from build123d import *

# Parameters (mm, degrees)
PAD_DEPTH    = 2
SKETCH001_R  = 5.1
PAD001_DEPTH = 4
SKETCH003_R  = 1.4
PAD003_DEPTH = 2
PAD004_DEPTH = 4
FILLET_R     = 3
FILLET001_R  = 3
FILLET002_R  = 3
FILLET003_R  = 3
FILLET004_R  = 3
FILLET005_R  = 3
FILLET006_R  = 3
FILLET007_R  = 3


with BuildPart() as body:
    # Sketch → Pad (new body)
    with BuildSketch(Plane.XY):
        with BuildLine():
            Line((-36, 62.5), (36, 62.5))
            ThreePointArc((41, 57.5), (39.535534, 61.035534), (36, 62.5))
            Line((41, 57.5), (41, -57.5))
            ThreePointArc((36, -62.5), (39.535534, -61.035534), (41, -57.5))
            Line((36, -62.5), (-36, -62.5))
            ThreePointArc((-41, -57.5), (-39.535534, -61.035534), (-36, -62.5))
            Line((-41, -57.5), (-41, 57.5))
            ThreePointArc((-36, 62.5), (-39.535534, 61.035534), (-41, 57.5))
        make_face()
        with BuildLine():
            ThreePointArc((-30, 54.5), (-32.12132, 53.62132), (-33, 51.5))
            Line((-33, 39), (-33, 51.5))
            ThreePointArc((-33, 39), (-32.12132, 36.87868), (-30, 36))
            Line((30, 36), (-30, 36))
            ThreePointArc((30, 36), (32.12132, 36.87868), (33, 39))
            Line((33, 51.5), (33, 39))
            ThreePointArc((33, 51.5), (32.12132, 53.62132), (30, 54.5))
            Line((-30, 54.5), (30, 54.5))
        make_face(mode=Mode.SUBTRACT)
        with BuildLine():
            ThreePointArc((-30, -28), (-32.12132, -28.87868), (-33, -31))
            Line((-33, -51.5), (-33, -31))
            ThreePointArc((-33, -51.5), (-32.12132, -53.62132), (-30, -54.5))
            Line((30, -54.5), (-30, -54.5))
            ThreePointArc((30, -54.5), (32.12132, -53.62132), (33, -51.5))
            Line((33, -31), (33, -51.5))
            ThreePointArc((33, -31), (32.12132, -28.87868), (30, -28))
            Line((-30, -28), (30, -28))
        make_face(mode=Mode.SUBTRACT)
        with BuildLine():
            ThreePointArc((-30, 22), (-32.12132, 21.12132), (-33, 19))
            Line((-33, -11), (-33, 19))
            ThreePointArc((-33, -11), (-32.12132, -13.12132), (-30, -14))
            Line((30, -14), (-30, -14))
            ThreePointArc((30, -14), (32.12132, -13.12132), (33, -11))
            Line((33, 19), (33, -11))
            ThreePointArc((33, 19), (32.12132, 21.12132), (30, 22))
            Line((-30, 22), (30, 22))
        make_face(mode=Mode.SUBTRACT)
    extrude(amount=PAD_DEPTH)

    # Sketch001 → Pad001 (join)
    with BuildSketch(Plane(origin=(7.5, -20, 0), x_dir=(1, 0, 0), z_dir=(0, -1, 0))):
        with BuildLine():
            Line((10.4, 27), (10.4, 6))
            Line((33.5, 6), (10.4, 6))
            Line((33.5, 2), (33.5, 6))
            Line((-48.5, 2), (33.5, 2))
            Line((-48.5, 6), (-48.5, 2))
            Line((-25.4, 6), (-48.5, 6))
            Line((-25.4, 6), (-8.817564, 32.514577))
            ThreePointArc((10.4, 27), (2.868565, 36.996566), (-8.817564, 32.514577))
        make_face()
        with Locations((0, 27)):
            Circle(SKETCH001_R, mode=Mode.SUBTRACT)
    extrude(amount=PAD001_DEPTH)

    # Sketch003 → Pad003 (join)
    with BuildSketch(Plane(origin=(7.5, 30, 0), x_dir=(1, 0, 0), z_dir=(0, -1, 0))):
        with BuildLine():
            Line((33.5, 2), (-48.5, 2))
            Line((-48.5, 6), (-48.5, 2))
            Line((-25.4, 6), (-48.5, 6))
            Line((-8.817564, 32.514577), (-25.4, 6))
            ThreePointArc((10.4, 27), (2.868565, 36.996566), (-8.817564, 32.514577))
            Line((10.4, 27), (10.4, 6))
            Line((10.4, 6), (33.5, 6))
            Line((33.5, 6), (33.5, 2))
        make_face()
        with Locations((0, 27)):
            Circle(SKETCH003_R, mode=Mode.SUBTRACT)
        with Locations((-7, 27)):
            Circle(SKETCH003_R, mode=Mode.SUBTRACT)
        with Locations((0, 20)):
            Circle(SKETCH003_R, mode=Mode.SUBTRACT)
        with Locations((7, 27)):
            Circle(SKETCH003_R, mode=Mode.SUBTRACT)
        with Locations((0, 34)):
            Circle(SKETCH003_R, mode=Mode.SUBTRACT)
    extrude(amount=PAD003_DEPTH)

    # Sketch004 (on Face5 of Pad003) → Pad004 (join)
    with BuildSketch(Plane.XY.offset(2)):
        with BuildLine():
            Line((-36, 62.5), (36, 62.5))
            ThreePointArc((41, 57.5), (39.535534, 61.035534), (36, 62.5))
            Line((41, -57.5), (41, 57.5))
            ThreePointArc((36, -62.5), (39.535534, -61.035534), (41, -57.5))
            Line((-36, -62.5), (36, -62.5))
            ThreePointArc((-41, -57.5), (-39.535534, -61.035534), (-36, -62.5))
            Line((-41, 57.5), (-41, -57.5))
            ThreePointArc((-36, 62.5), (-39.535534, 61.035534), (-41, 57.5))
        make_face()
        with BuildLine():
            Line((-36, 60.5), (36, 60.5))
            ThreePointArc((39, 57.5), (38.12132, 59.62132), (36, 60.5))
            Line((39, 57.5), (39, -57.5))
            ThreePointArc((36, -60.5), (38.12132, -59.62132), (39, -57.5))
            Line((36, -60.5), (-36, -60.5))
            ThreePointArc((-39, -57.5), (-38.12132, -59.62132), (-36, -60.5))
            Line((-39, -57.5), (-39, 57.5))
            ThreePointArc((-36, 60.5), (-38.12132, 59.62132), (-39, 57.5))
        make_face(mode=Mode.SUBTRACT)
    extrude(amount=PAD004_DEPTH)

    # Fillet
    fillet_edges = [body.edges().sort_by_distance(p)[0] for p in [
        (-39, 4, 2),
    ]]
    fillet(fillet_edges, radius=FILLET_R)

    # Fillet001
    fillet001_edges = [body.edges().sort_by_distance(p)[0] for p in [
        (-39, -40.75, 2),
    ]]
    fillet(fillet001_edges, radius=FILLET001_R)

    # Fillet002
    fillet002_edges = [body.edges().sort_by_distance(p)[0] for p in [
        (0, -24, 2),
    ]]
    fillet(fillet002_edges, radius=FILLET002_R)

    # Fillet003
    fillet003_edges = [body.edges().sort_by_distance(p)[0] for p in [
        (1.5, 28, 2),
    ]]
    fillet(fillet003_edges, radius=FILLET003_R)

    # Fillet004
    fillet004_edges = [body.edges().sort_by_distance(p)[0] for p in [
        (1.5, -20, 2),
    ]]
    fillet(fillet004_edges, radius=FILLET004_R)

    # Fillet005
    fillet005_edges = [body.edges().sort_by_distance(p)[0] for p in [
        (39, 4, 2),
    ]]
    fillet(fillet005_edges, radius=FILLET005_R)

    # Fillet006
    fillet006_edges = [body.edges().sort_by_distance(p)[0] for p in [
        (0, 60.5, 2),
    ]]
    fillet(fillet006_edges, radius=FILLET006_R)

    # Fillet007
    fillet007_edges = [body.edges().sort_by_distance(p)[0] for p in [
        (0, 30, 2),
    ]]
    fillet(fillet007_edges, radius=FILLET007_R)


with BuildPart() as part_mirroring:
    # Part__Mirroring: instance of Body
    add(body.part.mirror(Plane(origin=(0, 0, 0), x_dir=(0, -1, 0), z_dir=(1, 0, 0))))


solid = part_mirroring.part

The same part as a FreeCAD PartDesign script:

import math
import FreeCAD as App
import Part
import Sketcher
from FreeCAD import Vector
Q = App.Units.Quantity


def edges_at(feature, points):
    """Names of the edges that pass closest to the given points."""
    edges = feature.Shape.Edges
    near = lambda p: min(range(len(edges)), key=lambda i: edges[i].distToShape(Part.Vertex(*p))[0])
    return sorted({f"Edge{near(p) + 1}" for p in points})

doc = App.newDocument("Part")
body = doc.addObject("PartDesign::Body", "Body")

# Sketch on XY plane
sketch1 = body.newObject("Sketcher::SketchObject", "Sketch")
sketch1.AttachmentSupport = (doc.getObject("XY_Plane"), [""])
sketch1.MapMode = "FlatFace"
sketch1.addGeometry([
    Part.LineSegment(Vector(36, 62.5, 0), Vector(-36, 62.5, 0)),  # 0
    Part.ArcOfCircle(Part.Circle(Vector(-36, 57.5, 0), Vector(0, 0, 1), 5), math.radians(90), math.radians(180)),  # 1
    Part.LineSegment(Vector(-41, 57.5, 0), Vector(-41, -57.5, 0)),  # 2
    Part.ArcOfCircle(Part.Circle(Vector(-36, -57.5, 0), Vector(0, 0, 1), 5), math.radians(180), math.radians(270)),  # 3
    Part.LineSegment(Vector(-36, -62.5, 0), Vector(36, -62.5, 0)),  # 4
    Part.ArcOfCircle(Part.Circle(Vector(36, -57.5, 0), Vector(0, 0, 1), 5), math.radians(-90), math.radians(0)),  # 5
    Part.LineSegment(Vector(41, -57.5, 0), Vector(41, 57.5, 0)),  # 6
    Part.ArcOfCircle(Part.Circle(Vector(36, 57.5, 0), Vector(0, 0, 1), 5), math.radians(0), math.radians(90)),  # 7
    Part.LineSegment(Vector(-30, -28, 0), Vector(30, -28, 0)),  # 8
    Part.ArcOfCircle(Part.Circle(Vector(30, -31, 0), Vector(0, 0, 1), 3), math.radians(0), math.radians(90)),  # 9
    Part.LineSegment(Vector(33, -31, 0), Vector(33, -51.5, 0)),  # 10
    Part.ArcOfCircle(Part.Circle(Vector(30, -51.5, 0), Vector(0, 0, 1), 3), math.radians(-90), math.radians(0)),  # 11
    Part.LineSegment(Vector(30, -54.5, 0), Vector(-30, -54.5, 0)),  # 12
    Part.ArcOfCircle(Part.Circle(Vector(-30, -51.5, 0), Vector(0, 0, 1), 3), math.radians(-180), math.radians(-90)),  # 13
    Part.LineSegment(Vector(-33, -51.5, 0), Vector(-33, -31, 0)),  # 14
    Part.ArcOfCircle(Part.Circle(Vector(-30, -31, 0), Vector(0, 0, 1), 3), math.radians(90), math.radians(180)),  # 15
    Part.LineSegment(Vector(-30, 22, 0), Vector(30, 22, 0)),  # 16
    Part.ArcOfCircle(Part.Circle(Vector(30, 19, 0), Vector(0, 0, 1), 3), math.radians(0), math.radians(90)),  # 17
    Part.LineSegment(Vector(33, 19, 0), Vector(33, -11, 0)),  # 18
    Part.ArcOfCircle(Part.Circle(Vector(30, -11, 0), Vector(0, 0, 1), 3), math.radians(-90), math.radians(0)),  # 19
    Part.LineSegment(Vector(30, -14, 0), Vector(-30, -14, 0)),  # 20
    Part.ArcOfCircle(Part.Circle(Vector(-30, -11, 0), Vector(0, 0, 1), 3), math.radians(-180), math.radians(-90)),  # 21
    Part.LineSegment(Vector(-33, -11, 0), Vector(-33, 19, 0)),  # 22
    Part.ArcOfCircle(Part.Circle(Vector(-30, 19, 0), Vector(0, 0, 1), 3), math.radians(90), math.radians(180)),  # 23
    Part.LineSegment(Vector(-30, 54.5, 0), Vector(30, 54.5, 0)),  # 24
    Part.ArcOfCircle(Part.Circle(Vector(30, 51.5, 0), Vector(0, 0, 1), 3), math.radians(0), math.radians(90)),  # 25
    Part.LineSegment(Vector(33, 51.5, 0), Vector(33, 39, 0)),  # 26
    Part.ArcOfCircle(Part.Circle(Vector(30, 39, 0), Vector(0, 0, 1), 3), math.radians(-90), math.radians(0)),  # 27
    Part.LineSegment(Vector(30, 36, 0), Vector(-30, 36, 0)),  # 28
    Part.ArcOfCircle(Part.Circle(Vector(-30, 39, 0), Vector(0, 0, 1), 3), math.radians(-180), math.radians(-90)),  # 29
    Part.LineSegment(Vector(-33, 39, 0), Vector(-33, 51.5, 0)),  # 30
    Part.ArcOfCircle(Part.Circle(Vector(-30, 51.5, 0), Vector(0, 0, 1), 3), math.radians(90), math.radians(180)),  # 31
], False)
sketch1.addConstraint([
    Sketcher.Constraint("Tangent", 0, 2, 1, 1),
    Sketcher.Constraint("Tangent", 1, 2, 2, 1),
    Sketcher.Constraint("Tangent", 2, 2, 3, 1),
    Sketcher.Constraint("Tangent", 3, 2, 4, 1),
    Sketcher.Constraint("Tangent", 4, 2, 5, 1),
    Sketcher.Constraint("Tangent", 5, 2, 6, 1),
    Sketcher.Constraint("Tangent", 6, 2, 7, 1),
    Sketcher.Constraint("Tangent", 7, 2, 0, 1),
    Sketcher.Constraint("Tangent", 8, 2, 9, 2),
    Sketcher.Constraint("Tangent", 9, 1, 10, 1),
    Sketcher.Constraint("Tangent", 10, 2, 11, 2),
    Sketcher.Constraint("Tangent", 11, 1, 12, 1),
    Sketcher.Constraint("Tangent", 12, 2, 13, 2),
    Sketcher.Constraint("Tangent", 13, 1, 14, 1),
    Sketcher.Constraint("Tangent", 14, 2, 15, 2),
    Sketcher.Constraint("Tangent", 15, 1, 8, 1),
    Sketcher.Constraint("Tangent", 16, 2, 17, 2),
    Sketcher.Constraint("Tangent", 17, 1, 18, 1),
    Sketcher.Constraint("Tangent", 18, 2, 19, 2),
    Sketcher.Constraint("Tangent", 19, 1, 20, 1),
    Sketcher.Constraint("Tangent", 20, 2, 21, 2),
    Sketcher.Constraint("Tangent", 21, 1, 22, 1),
    Sketcher.Constraint("Tangent", 22, 2, 23, 2),
    Sketcher.Constraint("Tangent", 23, 1, 16, 1),
    Sketcher.Constraint("Tangent", 24, 2, 25, 2),
    Sketcher.Constraint("Tangent", 25, 1, 26, 1),
    Sketcher.Constraint("Tangent", 26, 2, 27, 2),
    Sketcher.Constraint("Tangent", 27, 1, 28, 1),
    Sketcher.Constraint("Tangent", 28, 2, 29, 2),
    Sketcher.Constraint("Tangent", 29, 1, 30, 1),
    Sketcher.Constraint("Tangent", 30, 2, 31, 2),
    Sketcher.Constraint("Tangent", 31, 1, 24, 1),
    Sketcher.Constraint("Horizontal", 0),
    Sketcher.Constraint("Vertical", 2),
    Sketcher.Constraint("Horizontal", 4),
    Sketcher.Constraint("Vertical", 6),
    Sketcher.Constraint("Horizontal", 8),
    Sketcher.Constraint("Vertical", 10),
    Sketcher.Constraint("Horizontal", 12),
    Sketcher.Constraint("Vertical", 14),
    Sketcher.Constraint("Horizontal", 16),
    Sketcher.Constraint("Vertical", 18),
    Sketcher.Constraint("Horizontal", 20),
    Sketcher.Constraint("Vertical", 22),
    Sketcher.Constraint("Horizontal", 24),
    Sketcher.Constraint("Vertical", 26),
    Sketcher.Constraint("Horizontal", 28),
    Sketcher.Constraint("Vertical", 30),
    Sketcher.Constraint("Equal", 1, 3),
    Sketcher.Constraint("Equal", 3, 5),
    Sketcher.Constraint("Equal", 5, 7),
    Sketcher.Constraint("Equal", 9, 11),
    Sketcher.Constraint("Equal", 11, 13),
    Sketcher.Constraint("Equal", 13, 15),
    Sketcher.Constraint("Equal", 15, 17),
    Sketcher.Constraint("Equal", 17, 19),
    Sketcher.Constraint("Equal", 19, 21),
    Sketcher.Constraint("Equal", 21, 23),
    Sketcher.Constraint("Equal", 23, 25),
    Sketcher.Constraint("Equal", 25, 27),
    Sketcher.Constraint("Equal", 27, 29),
    Sketcher.Constraint("Equal", 29, 31),
    Sketcher.Constraint("Symmetric", 1, 3, 5, 3, -1, 1),
    Sketcher.Constraint("Symmetric", 13, 3, 25, 3, -1, 1),
    Sketcher.Constraint("Vertical", 11, 3, 17, 3),
    Sketcher.Constraint("Vertical", 15, 3, 21, 3),
    Sketcher.Constraint("Vertical", 19, 3, 25, 3),
    Sketcher.Constraint("Vertical", 23, 3, 29, 3),
    Sketcher.Constraint("Radius", 1, Q("5 mm")),
    Sketcher.Constraint("Radius", 9, Q("3.000001 mm")),
    Sketcher.Constraint("DistanceX", 0, 2, 0, 1, Q("72 mm")),
    Sketcher.Constraint("DistanceX", 8, 1, 8, 2, Q("60 mm")),
    Sketcher.Constraint("DistanceY", 2, 2, 2, 1, Q("115 mm")),
    Sketcher.Constraint("DistanceY", 18, 2, 18, 1, Q("30 mm")),
    Sketcher.Constraint("DistanceY", 10, 2, 10, 1, Q("20.5 mm")),
    Sketcher.Constraint("DistanceY", 26, 2, 26, 1, Q("12.5 mm")),
    Sketcher.Constraint("DistanceY", 9, 3, -1, 1, Q("31.000001 mm")),
    Sketcher.Constraint("DistanceY", -1, 1, 17, 3, Q("18.999999 mm")),
])
pad1 = body.newObject("PartDesign::Pad", "Pad")
pad1.Profile = sketch1
pad1.Length = 2

# Sketch on XZ plane
sketch2 = body.newObject("Sketcher::SketchObject", "Sketch001")
sketch2.AttachmentSupport = (doc.getObject("XZ_Plane"), [""])
sketch2.MapMode = "FlatFace"
sketch2.AttachmentOffset = App.Placement(Vector(0, 0, 20), App.Rotation())
sketch2.addGeometry([
    Part.LineSegment(Vector(17.9, 6, 0), Vector(17.9, 27, 0)),  # 0
    Part.ArcOfCircle(Part.Circle(Vector(7.5, 27, 0), Vector(0, 0, 1), 10.4), math.radians(0), math.radians(148)),  # 1
    Part.LineSegment(Vector(-1.3, 32.5, 0), Vector(-17.9, 6, 0)),  # 2
    Part.LineSegment(Vector(-17.9, 6, 0), Vector(-41, 6, 0)),  # 3
    Part.LineSegment(Vector(-41, 6, 0), Vector(-41, 2, 0)),  # 4
    Part.LineSegment(Vector(-41, 2, 0), Vector(41, 2, 0)),  # 5
    Part.LineSegment(Vector(41, 2, 0), Vector(41, 6, 0)),  # 6
    Part.LineSegment(Vector(41, 6, 0), Vector(17.9, 6, 0)),  # 7
    Part.Circle(Vector(7.5, 27, 0), Vector(0, 0, 1), 5.1),  # 8
], False)
sketch2.addConstraint([
    Sketcher.Constraint("Tangent", 0, 2, 1, 1),
    Sketcher.Constraint("Tangent", 1, 2, 2, 1),
    Sketcher.Constraint("Coincident", 2, 2, 3, 1),
    Sketcher.Constraint("Coincident", 3, 2, 4, 1),
    Sketcher.Constraint("Coincident", 4, 2, 5, 1),
    Sketcher.Constraint("Coincident", 5, 2, 6, 1),
    Sketcher.Constraint("Coincident", 6, 2, 7, 1),
    Sketcher.Constraint("Coincident", 7, 2, 0, 1),
    Sketcher.Constraint("Vertical", 0),
    Sketcher.Constraint("Horizontal", 3),
    Sketcher.Constraint("Vertical", 4),
    Sketcher.Constraint("Horizontal", 5),
    Sketcher.Constraint("Vertical", 6),
    Sketcher.Constraint("Horizontal", 7),
    Sketcher.Constraint("Coincident", 8, 3, 1, 3),
    Sketcher.Constraint("Symmetric", 3, 2, 6, 2, -2),
    Sketcher.Constraint("Equal", 3, 7),
    Sketcher.Constraint("Diameter", 8, Q("10.2 mm")),
    Sketcher.Constraint("Radius", 1, Q("10.4 mm")),
    Sketcher.Constraint("DistanceX", 5, 1, 5, 2, Q("82 mm")),
    Sketcher.Constraint("DistanceY", 0, 1, 0, 2, Q("21 mm")),
    Sketcher.Constraint("DistanceY", 4, 2, 4, 1, Q("4 mm")),
    Sketcher.Constraint("DistanceX", 3, 2, 3, 1, Q("23.1 mm")),
    Sketcher.Constraint("DistanceY", -1, 1, 1, 3, Q("27 mm")),
])
pad2 = body.newObject("PartDesign::Pad", "Pad001")
pad2.Profile = sketch2
pad2.Length = 4

# Sketch on XZ plane
sketch3 = body.newObject("Sketcher::SketchObject", "Sketch002")
sketch3.AttachmentSupport = (doc.getObject("XZ_Plane"), [""])
sketch3.MapMode = "FlatFace"
sketch3.AttachmentOffset = App.Placement(Vector(0, 0, -30), App.Rotation())
sketch3.addGeometry([
    Part.LineSegment(Vector(-41, 2, 0), Vector(41, 2, 0)),  # 0
    Part.LineSegment(Vector(41, 2, 0), Vector(41, 6, 0)),  # 1
    Part.LineSegment(Vector(41, 6, 0), Vector(17.9, 6, 0)),  # 2
    Part.LineSegment(Vector(17.9, 6, 0), Vector(17.9, 27, 0)),  # 3
    Part.ArcOfCircle(Part.Circle(Vector(7.5, 27, 0), Vector(0, 0, 1), 10.4), math.radians(0), math.radians(148)),  # 4
    Part.LineSegment(Vector(-1.3, 32.5, 0), Vector(-17.9, 6, 0)),  # 5
    Part.LineSegment(Vector(-17.9, 6, 0), Vector(-41, 6, 0)),  # 6
    Part.LineSegment(Vector(-41, 6, 0), Vector(-41, 2, 0)),  # 7
    Part.Circle(Vector(7.5, 20, 0), Vector(0, 0, 1), 1.4),  # 8
    Part.Circle(Vector(14.5, 27, 0), Vector(0, 0, 1), 1.4),  # 9
    Part.Circle(Vector(7.5, 27, 0), Vector(0, 0, 1), 1.4),  # 10
    Part.Circle(Vector(0.5, 27, 0), Vector(0, 0, 1), 1.4),  # 11
    Part.Circle(Vector(7.5, 34, 0), Vector(0, 0, 1), 1.4),  # 12
], False)
sketch3.addConstraint([
    Sketcher.Constraint("Coincident", 0, 2, 1, 1),
    Sketcher.Constraint("Coincident", 1, 2, 2, 1),
    Sketcher.Constraint("Coincident", 2, 2, 3, 1),
    Sketcher.Constraint("Tangent", 3, 2, 4, 1),
    Sketcher.Constraint("Tangent", 4, 2, 5, 1),
    Sketcher.Constraint("Coincident", 5, 2, 6, 1),
    Sketcher.Constraint("Coincident", 6, 2, 7, 1),
    Sketcher.Constraint("Coincident", 7, 2, 0, 1),
    Sketcher.Constraint("Horizontal", 0),
    Sketcher.Constraint("Vertical", 1),
    Sketcher.Constraint("Horizontal", 2),
    Sketcher.Constraint("Vertical", 3),
    Sketcher.Constraint("Horizontal", 6),
    Sketcher.Constraint("Vertical", 7),
    Sketcher.Constraint("Coincident", 10, 3, 4, 3),
    Sketcher.Constraint("Equal", 8, 9),
    Sketcher.Constraint("Equal", 9, 10),
    Sketcher.Constraint("Equal", 10, 11),
    Sketcher.Constraint("Equal", 11, 12),
    Sketcher.Constraint("Symmetric", 2, 2, 5, 2, -2),
    Sketcher.Constraint("Horizontal", 4, 3, 9, 3),
    Sketcher.Constraint("Horizontal", 10, 3, 11, 3),
    Sketcher.Constraint("Vertical", 4, 3, 8, 3),
    Sketcher.Constraint("Vertical", 10, 3, 12, 3),
    Sketcher.Constraint("Equal", 2, 6),
    Sketcher.Constraint("Diameter", 8, Q("2.8 mm")),
    Sketcher.Constraint("Radius", 4, Q("10.4 mm")),
    Sketcher.Constraint("DistanceX", 0, 1, 0, 2, Q("82 mm")),
    Sketcher.Constraint("DistanceY", 1, 1, 1, 2, Q("4 mm")),
    Sketcher.Constraint("DistanceY", 3, 1, 3, 2, Q("21 mm")),
    Sketcher.Constraint("DistanceX", 2, 2, 2, 1, Q("23.1 mm")),
    Sketcher.Constraint("DistanceY", -1, 1, 4, 3, Q("27 mm")),
    Sketcher.Constraint("DistanceY", -1, 1, 8, 3, Q("20 mm")),
    Sketcher.Constraint("DistanceY", -1, 1, 12, 3, Q("34 mm")),
    Sketcher.Constraint("DistanceX", 4, 3, 9, 3, Q("7 mm")),
    Sketcher.Constraint("DistanceX", 11, 3, 10, 3, Q("7 mm")),
])
pad3 = body.newObject("PartDesign::Pad", "Pad002")
pad3.Profile = sketch3
pad3.Length = 2

# Sketch on XY plane
sketch4 = body.newObject("Sketcher::SketchObject", "Sketch003")
sketch4.AttachmentSupport = (doc.getObject("XY_Plane"), [""])
sketch4.MapMode = "FlatFace"
sketch4.AttachmentOffset = App.Placement(Vector(0, 0, 2), App.Rotation())
sketch4.addGeometry([
    Part.LineSegment(Vector(36, 62.5, 0), Vector(-36, 62.5, 0)),  # 0
    Part.ArcOfCircle(Part.Circle(Vector(-36, 57.5, 0), Vector(0, 0, 1), 5), math.radians(90), math.radians(180)),  # 1
    Part.LineSegment(Vector(-41, 57.5, 0), Vector(-41, -57.5, 0)),  # 2
    Part.ArcOfCircle(Part.Circle(Vector(-36, -57.5, 0), Vector(0, 0, 1), 5), math.radians(180), math.radians(270)),  # 3
    Part.LineSegment(Vector(-36, -62.5, 0), Vector(36, -62.5, 0)),  # 4
    Part.ArcOfCircle(Part.Circle(Vector(36, -57.5, 0), Vector(0, 0, 1), 5), math.radians(-90), math.radians(0)),  # 5
    Part.LineSegment(Vector(41, -57.5, 0), Vector(41, 57.5, 0)),  # 6
    Part.ArcOfCircle(Part.Circle(Vector(36, 57.5, 0), Vector(0, 0, 1), 5), math.radians(0), math.radians(90)),  # 7
    Part.LineSegment(Vector(-36, 60.5, 0), Vector(36, 60.5, 0)),  # 8
    Part.ArcOfCircle(Part.Circle(Vector(36, 57.5, 0), Vector(0, 0, 1), 3), math.radians(0), math.radians(90)),  # 9
    Part.LineSegment(Vector(39, 57.5, 0), Vector(39, -57.5, 0)),  # 10
    Part.ArcOfCircle(Part.Circle(Vector(36, -57.5, 0), Vector(0, 0, 1), 3), math.radians(-90), math.radians(0)),  # 11
    Part.LineSegment(Vector(36, -60.5, 0), Vector(-36, -60.5, 0)),  # 12
    Part.ArcOfCircle(Part.Circle(Vector(-36, -57.5, 0), Vector(0, 0, 1), 3), math.radians(-180), math.radians(-90)),  # 13
    Part.LineSegment(Vector(-39, -57.5, 0), Vector(-39, 57.5, 0)),  # 14
    Part.ArcOfCircle(Part.Circle(Vector(-36, 57.5, 0), Vector(0, 0, 1), 3), math.radians(90), math.radians(180)),  # 15
], False)
sketch4.addConstraint([
    Sketcher.Constraint("Tangent", 0, 2, 1, 1),
    Sketcher.Constraint("Tangent", 1, 2, 2, 1),
    Sketcher.Constraint("Tangent", 2, 2, 3, 1),
    Sketcher.Constraint("Tangent", 3, 2, 4, 1),
    Sketcher.Constraint("Tangent", 4, 2, 5, 1),
    Sketcher.Constraint("Tangent", 5, 2, 6, 1),
    Sketcher.Constraint("Tangent", 6, 2, 7, 1),
    Sketcher.Constraint("Tangent", 7, 2, 0, 1),
    Sketcher.Constraint("Tangent", 8, 2, 9, 2),
    Sketcher.Constraint("Tangent", 9, 1, 10, 1),
    Sketcher.Constraint("Tangent", 10, 2, 11, 2),
    Sketcher.Constraint("Tangent", 11, 1, 12, 1),
    Sketcher.Constraint("Tangent", 12, 2, 13, 2),
    Sketcher.Constraint("Tangent", 13, 1, 14, 1),
    Sketcher.Constraint("Tangent", 14, 2, 15, 2),
    Sketcher.Constraint("Tangent", 15, 1, 8, 1),
    Sketcher.Constraint("Horizontal", 0),
    Sketcher.Constraint("Vertical", 2),
    Sketcher.Constraint("Horizontal", 4),
    Sketcher.Constraint("Vertical", 6),
    Sketcher.Constraint("Horizontal", 8),
    Sketcher.Constraint("Vertical", 10),
    Sketcher.Constraint("Horizontal", 12),
    Sketcher.Constraint("Vertical", 14),
    Sketcher.Constraint("Coincident", 9, 3, 7, 3),
    Sketcher.Constraint("Coincident", 11, 3, 5, 3),
    Sketcher.Constraint("Coincident", 13, 3, 3, 3),
    Sketcher.Constraint("Equal", 1, 3),
    Sketcher.Constraint("Equal", 3, 5),
    Sketcher.Constraint("Equal", 5, 7),
    Sketcher.Constraint("Equal", 13, 15),
    Sketcher.Constraint("Symmetric", 1, 3, 5, 3, -1, 1),
    Sketcher.Constraint("Radius", 1, Q("5 mm")),
    Sketcher.Constraint("Radius", 9, Q("3.000001 mm")),
    Sketcher.Constraint("DistanceX", 0, 2, 0, 1, Q("72 mm")),
    Sketcher.Constraint("DistanceY", 2, 2, 2, 1, Q("115 mm")),
])
pad4 = body.newObject("PartDesign::Pad", "Pad003")
pad4.Profile = sketch4
pad4.Length = 4
doc.recompute()

fillet = body.newObject("PartDesign::Fillet", "Fillet")
fillet.Base = (pad4, edges_at(pad4, [(-39, 4, 2)]))
fillet.Radius = 3
doc.recompute()

fillet2 = body.newObject("PartDesign::Fillet", "Fillet001")
fillet2.Base = (fillet, edges_at(fillet, [(-39, -40.75, 2)]))
fillet2.Radius = 3
doc.recompute()

fillet3 = body.newObject("PartDesign::Fillet", "Fillet002")
fillet3.Base = (fillet2, edges_at(fillet2, [(0, -24, 2)]))
fillet3.Radius = 3
doc.recompute()

fillet4 = body.newObject("PartDesign::Fillet", "Fillet003")
fillet4.Base = (fillet3, edges_at(fillet3, [(1.5, 28, 2)]))
fillet4.Radius = 3
doc.recompute()

fillet5 = body.newObject("PartDesign::Fillet", "Fillet004")
fillet5.Base = (fillet4, edges_at(fillet4, [(1.5, -20, 2)]))
fillet5.Radius = 3
doc.recompute()

fillet6 = body.newObject("PartDesign::Fillet", "Fillet005")
fillet6.Base = (fillet5, edges_at(fillet5, [(39, 4, 2)]))
fillet6.Radius = 3
doc.recompute()

fillet7 = body.newObject("PartDesign::Fillet", "Fillet006")
fillet7.Base = (fillet6, edges_at(fillet6, [(0, 60.5, 2)]))
fillet7.Radius = 3
doc.recompute()

fillet8 = body.newObject("PartDesign::Fillet", "Fillet007")
fillet8.Base = (fillet7, edges_at(fillet7, [(0, 30, 2)]))
fillet8.Radius = 3
body2 = doc.addObject("PartDesign::Body", "Body001")
doc.recompute()

mirroring = doc.addObject("Part::Mirroring", "Mirroring")
mirroring.Source = body
mirroring.Base = Vector(0, 0, 0)
mirroring.Normal = Vector(1, 0, 0)
body2.BaseFeature = mirroring
doc.recompute()
body.Visibility = False
mirroring.Visibility = False

doc.recompute()
